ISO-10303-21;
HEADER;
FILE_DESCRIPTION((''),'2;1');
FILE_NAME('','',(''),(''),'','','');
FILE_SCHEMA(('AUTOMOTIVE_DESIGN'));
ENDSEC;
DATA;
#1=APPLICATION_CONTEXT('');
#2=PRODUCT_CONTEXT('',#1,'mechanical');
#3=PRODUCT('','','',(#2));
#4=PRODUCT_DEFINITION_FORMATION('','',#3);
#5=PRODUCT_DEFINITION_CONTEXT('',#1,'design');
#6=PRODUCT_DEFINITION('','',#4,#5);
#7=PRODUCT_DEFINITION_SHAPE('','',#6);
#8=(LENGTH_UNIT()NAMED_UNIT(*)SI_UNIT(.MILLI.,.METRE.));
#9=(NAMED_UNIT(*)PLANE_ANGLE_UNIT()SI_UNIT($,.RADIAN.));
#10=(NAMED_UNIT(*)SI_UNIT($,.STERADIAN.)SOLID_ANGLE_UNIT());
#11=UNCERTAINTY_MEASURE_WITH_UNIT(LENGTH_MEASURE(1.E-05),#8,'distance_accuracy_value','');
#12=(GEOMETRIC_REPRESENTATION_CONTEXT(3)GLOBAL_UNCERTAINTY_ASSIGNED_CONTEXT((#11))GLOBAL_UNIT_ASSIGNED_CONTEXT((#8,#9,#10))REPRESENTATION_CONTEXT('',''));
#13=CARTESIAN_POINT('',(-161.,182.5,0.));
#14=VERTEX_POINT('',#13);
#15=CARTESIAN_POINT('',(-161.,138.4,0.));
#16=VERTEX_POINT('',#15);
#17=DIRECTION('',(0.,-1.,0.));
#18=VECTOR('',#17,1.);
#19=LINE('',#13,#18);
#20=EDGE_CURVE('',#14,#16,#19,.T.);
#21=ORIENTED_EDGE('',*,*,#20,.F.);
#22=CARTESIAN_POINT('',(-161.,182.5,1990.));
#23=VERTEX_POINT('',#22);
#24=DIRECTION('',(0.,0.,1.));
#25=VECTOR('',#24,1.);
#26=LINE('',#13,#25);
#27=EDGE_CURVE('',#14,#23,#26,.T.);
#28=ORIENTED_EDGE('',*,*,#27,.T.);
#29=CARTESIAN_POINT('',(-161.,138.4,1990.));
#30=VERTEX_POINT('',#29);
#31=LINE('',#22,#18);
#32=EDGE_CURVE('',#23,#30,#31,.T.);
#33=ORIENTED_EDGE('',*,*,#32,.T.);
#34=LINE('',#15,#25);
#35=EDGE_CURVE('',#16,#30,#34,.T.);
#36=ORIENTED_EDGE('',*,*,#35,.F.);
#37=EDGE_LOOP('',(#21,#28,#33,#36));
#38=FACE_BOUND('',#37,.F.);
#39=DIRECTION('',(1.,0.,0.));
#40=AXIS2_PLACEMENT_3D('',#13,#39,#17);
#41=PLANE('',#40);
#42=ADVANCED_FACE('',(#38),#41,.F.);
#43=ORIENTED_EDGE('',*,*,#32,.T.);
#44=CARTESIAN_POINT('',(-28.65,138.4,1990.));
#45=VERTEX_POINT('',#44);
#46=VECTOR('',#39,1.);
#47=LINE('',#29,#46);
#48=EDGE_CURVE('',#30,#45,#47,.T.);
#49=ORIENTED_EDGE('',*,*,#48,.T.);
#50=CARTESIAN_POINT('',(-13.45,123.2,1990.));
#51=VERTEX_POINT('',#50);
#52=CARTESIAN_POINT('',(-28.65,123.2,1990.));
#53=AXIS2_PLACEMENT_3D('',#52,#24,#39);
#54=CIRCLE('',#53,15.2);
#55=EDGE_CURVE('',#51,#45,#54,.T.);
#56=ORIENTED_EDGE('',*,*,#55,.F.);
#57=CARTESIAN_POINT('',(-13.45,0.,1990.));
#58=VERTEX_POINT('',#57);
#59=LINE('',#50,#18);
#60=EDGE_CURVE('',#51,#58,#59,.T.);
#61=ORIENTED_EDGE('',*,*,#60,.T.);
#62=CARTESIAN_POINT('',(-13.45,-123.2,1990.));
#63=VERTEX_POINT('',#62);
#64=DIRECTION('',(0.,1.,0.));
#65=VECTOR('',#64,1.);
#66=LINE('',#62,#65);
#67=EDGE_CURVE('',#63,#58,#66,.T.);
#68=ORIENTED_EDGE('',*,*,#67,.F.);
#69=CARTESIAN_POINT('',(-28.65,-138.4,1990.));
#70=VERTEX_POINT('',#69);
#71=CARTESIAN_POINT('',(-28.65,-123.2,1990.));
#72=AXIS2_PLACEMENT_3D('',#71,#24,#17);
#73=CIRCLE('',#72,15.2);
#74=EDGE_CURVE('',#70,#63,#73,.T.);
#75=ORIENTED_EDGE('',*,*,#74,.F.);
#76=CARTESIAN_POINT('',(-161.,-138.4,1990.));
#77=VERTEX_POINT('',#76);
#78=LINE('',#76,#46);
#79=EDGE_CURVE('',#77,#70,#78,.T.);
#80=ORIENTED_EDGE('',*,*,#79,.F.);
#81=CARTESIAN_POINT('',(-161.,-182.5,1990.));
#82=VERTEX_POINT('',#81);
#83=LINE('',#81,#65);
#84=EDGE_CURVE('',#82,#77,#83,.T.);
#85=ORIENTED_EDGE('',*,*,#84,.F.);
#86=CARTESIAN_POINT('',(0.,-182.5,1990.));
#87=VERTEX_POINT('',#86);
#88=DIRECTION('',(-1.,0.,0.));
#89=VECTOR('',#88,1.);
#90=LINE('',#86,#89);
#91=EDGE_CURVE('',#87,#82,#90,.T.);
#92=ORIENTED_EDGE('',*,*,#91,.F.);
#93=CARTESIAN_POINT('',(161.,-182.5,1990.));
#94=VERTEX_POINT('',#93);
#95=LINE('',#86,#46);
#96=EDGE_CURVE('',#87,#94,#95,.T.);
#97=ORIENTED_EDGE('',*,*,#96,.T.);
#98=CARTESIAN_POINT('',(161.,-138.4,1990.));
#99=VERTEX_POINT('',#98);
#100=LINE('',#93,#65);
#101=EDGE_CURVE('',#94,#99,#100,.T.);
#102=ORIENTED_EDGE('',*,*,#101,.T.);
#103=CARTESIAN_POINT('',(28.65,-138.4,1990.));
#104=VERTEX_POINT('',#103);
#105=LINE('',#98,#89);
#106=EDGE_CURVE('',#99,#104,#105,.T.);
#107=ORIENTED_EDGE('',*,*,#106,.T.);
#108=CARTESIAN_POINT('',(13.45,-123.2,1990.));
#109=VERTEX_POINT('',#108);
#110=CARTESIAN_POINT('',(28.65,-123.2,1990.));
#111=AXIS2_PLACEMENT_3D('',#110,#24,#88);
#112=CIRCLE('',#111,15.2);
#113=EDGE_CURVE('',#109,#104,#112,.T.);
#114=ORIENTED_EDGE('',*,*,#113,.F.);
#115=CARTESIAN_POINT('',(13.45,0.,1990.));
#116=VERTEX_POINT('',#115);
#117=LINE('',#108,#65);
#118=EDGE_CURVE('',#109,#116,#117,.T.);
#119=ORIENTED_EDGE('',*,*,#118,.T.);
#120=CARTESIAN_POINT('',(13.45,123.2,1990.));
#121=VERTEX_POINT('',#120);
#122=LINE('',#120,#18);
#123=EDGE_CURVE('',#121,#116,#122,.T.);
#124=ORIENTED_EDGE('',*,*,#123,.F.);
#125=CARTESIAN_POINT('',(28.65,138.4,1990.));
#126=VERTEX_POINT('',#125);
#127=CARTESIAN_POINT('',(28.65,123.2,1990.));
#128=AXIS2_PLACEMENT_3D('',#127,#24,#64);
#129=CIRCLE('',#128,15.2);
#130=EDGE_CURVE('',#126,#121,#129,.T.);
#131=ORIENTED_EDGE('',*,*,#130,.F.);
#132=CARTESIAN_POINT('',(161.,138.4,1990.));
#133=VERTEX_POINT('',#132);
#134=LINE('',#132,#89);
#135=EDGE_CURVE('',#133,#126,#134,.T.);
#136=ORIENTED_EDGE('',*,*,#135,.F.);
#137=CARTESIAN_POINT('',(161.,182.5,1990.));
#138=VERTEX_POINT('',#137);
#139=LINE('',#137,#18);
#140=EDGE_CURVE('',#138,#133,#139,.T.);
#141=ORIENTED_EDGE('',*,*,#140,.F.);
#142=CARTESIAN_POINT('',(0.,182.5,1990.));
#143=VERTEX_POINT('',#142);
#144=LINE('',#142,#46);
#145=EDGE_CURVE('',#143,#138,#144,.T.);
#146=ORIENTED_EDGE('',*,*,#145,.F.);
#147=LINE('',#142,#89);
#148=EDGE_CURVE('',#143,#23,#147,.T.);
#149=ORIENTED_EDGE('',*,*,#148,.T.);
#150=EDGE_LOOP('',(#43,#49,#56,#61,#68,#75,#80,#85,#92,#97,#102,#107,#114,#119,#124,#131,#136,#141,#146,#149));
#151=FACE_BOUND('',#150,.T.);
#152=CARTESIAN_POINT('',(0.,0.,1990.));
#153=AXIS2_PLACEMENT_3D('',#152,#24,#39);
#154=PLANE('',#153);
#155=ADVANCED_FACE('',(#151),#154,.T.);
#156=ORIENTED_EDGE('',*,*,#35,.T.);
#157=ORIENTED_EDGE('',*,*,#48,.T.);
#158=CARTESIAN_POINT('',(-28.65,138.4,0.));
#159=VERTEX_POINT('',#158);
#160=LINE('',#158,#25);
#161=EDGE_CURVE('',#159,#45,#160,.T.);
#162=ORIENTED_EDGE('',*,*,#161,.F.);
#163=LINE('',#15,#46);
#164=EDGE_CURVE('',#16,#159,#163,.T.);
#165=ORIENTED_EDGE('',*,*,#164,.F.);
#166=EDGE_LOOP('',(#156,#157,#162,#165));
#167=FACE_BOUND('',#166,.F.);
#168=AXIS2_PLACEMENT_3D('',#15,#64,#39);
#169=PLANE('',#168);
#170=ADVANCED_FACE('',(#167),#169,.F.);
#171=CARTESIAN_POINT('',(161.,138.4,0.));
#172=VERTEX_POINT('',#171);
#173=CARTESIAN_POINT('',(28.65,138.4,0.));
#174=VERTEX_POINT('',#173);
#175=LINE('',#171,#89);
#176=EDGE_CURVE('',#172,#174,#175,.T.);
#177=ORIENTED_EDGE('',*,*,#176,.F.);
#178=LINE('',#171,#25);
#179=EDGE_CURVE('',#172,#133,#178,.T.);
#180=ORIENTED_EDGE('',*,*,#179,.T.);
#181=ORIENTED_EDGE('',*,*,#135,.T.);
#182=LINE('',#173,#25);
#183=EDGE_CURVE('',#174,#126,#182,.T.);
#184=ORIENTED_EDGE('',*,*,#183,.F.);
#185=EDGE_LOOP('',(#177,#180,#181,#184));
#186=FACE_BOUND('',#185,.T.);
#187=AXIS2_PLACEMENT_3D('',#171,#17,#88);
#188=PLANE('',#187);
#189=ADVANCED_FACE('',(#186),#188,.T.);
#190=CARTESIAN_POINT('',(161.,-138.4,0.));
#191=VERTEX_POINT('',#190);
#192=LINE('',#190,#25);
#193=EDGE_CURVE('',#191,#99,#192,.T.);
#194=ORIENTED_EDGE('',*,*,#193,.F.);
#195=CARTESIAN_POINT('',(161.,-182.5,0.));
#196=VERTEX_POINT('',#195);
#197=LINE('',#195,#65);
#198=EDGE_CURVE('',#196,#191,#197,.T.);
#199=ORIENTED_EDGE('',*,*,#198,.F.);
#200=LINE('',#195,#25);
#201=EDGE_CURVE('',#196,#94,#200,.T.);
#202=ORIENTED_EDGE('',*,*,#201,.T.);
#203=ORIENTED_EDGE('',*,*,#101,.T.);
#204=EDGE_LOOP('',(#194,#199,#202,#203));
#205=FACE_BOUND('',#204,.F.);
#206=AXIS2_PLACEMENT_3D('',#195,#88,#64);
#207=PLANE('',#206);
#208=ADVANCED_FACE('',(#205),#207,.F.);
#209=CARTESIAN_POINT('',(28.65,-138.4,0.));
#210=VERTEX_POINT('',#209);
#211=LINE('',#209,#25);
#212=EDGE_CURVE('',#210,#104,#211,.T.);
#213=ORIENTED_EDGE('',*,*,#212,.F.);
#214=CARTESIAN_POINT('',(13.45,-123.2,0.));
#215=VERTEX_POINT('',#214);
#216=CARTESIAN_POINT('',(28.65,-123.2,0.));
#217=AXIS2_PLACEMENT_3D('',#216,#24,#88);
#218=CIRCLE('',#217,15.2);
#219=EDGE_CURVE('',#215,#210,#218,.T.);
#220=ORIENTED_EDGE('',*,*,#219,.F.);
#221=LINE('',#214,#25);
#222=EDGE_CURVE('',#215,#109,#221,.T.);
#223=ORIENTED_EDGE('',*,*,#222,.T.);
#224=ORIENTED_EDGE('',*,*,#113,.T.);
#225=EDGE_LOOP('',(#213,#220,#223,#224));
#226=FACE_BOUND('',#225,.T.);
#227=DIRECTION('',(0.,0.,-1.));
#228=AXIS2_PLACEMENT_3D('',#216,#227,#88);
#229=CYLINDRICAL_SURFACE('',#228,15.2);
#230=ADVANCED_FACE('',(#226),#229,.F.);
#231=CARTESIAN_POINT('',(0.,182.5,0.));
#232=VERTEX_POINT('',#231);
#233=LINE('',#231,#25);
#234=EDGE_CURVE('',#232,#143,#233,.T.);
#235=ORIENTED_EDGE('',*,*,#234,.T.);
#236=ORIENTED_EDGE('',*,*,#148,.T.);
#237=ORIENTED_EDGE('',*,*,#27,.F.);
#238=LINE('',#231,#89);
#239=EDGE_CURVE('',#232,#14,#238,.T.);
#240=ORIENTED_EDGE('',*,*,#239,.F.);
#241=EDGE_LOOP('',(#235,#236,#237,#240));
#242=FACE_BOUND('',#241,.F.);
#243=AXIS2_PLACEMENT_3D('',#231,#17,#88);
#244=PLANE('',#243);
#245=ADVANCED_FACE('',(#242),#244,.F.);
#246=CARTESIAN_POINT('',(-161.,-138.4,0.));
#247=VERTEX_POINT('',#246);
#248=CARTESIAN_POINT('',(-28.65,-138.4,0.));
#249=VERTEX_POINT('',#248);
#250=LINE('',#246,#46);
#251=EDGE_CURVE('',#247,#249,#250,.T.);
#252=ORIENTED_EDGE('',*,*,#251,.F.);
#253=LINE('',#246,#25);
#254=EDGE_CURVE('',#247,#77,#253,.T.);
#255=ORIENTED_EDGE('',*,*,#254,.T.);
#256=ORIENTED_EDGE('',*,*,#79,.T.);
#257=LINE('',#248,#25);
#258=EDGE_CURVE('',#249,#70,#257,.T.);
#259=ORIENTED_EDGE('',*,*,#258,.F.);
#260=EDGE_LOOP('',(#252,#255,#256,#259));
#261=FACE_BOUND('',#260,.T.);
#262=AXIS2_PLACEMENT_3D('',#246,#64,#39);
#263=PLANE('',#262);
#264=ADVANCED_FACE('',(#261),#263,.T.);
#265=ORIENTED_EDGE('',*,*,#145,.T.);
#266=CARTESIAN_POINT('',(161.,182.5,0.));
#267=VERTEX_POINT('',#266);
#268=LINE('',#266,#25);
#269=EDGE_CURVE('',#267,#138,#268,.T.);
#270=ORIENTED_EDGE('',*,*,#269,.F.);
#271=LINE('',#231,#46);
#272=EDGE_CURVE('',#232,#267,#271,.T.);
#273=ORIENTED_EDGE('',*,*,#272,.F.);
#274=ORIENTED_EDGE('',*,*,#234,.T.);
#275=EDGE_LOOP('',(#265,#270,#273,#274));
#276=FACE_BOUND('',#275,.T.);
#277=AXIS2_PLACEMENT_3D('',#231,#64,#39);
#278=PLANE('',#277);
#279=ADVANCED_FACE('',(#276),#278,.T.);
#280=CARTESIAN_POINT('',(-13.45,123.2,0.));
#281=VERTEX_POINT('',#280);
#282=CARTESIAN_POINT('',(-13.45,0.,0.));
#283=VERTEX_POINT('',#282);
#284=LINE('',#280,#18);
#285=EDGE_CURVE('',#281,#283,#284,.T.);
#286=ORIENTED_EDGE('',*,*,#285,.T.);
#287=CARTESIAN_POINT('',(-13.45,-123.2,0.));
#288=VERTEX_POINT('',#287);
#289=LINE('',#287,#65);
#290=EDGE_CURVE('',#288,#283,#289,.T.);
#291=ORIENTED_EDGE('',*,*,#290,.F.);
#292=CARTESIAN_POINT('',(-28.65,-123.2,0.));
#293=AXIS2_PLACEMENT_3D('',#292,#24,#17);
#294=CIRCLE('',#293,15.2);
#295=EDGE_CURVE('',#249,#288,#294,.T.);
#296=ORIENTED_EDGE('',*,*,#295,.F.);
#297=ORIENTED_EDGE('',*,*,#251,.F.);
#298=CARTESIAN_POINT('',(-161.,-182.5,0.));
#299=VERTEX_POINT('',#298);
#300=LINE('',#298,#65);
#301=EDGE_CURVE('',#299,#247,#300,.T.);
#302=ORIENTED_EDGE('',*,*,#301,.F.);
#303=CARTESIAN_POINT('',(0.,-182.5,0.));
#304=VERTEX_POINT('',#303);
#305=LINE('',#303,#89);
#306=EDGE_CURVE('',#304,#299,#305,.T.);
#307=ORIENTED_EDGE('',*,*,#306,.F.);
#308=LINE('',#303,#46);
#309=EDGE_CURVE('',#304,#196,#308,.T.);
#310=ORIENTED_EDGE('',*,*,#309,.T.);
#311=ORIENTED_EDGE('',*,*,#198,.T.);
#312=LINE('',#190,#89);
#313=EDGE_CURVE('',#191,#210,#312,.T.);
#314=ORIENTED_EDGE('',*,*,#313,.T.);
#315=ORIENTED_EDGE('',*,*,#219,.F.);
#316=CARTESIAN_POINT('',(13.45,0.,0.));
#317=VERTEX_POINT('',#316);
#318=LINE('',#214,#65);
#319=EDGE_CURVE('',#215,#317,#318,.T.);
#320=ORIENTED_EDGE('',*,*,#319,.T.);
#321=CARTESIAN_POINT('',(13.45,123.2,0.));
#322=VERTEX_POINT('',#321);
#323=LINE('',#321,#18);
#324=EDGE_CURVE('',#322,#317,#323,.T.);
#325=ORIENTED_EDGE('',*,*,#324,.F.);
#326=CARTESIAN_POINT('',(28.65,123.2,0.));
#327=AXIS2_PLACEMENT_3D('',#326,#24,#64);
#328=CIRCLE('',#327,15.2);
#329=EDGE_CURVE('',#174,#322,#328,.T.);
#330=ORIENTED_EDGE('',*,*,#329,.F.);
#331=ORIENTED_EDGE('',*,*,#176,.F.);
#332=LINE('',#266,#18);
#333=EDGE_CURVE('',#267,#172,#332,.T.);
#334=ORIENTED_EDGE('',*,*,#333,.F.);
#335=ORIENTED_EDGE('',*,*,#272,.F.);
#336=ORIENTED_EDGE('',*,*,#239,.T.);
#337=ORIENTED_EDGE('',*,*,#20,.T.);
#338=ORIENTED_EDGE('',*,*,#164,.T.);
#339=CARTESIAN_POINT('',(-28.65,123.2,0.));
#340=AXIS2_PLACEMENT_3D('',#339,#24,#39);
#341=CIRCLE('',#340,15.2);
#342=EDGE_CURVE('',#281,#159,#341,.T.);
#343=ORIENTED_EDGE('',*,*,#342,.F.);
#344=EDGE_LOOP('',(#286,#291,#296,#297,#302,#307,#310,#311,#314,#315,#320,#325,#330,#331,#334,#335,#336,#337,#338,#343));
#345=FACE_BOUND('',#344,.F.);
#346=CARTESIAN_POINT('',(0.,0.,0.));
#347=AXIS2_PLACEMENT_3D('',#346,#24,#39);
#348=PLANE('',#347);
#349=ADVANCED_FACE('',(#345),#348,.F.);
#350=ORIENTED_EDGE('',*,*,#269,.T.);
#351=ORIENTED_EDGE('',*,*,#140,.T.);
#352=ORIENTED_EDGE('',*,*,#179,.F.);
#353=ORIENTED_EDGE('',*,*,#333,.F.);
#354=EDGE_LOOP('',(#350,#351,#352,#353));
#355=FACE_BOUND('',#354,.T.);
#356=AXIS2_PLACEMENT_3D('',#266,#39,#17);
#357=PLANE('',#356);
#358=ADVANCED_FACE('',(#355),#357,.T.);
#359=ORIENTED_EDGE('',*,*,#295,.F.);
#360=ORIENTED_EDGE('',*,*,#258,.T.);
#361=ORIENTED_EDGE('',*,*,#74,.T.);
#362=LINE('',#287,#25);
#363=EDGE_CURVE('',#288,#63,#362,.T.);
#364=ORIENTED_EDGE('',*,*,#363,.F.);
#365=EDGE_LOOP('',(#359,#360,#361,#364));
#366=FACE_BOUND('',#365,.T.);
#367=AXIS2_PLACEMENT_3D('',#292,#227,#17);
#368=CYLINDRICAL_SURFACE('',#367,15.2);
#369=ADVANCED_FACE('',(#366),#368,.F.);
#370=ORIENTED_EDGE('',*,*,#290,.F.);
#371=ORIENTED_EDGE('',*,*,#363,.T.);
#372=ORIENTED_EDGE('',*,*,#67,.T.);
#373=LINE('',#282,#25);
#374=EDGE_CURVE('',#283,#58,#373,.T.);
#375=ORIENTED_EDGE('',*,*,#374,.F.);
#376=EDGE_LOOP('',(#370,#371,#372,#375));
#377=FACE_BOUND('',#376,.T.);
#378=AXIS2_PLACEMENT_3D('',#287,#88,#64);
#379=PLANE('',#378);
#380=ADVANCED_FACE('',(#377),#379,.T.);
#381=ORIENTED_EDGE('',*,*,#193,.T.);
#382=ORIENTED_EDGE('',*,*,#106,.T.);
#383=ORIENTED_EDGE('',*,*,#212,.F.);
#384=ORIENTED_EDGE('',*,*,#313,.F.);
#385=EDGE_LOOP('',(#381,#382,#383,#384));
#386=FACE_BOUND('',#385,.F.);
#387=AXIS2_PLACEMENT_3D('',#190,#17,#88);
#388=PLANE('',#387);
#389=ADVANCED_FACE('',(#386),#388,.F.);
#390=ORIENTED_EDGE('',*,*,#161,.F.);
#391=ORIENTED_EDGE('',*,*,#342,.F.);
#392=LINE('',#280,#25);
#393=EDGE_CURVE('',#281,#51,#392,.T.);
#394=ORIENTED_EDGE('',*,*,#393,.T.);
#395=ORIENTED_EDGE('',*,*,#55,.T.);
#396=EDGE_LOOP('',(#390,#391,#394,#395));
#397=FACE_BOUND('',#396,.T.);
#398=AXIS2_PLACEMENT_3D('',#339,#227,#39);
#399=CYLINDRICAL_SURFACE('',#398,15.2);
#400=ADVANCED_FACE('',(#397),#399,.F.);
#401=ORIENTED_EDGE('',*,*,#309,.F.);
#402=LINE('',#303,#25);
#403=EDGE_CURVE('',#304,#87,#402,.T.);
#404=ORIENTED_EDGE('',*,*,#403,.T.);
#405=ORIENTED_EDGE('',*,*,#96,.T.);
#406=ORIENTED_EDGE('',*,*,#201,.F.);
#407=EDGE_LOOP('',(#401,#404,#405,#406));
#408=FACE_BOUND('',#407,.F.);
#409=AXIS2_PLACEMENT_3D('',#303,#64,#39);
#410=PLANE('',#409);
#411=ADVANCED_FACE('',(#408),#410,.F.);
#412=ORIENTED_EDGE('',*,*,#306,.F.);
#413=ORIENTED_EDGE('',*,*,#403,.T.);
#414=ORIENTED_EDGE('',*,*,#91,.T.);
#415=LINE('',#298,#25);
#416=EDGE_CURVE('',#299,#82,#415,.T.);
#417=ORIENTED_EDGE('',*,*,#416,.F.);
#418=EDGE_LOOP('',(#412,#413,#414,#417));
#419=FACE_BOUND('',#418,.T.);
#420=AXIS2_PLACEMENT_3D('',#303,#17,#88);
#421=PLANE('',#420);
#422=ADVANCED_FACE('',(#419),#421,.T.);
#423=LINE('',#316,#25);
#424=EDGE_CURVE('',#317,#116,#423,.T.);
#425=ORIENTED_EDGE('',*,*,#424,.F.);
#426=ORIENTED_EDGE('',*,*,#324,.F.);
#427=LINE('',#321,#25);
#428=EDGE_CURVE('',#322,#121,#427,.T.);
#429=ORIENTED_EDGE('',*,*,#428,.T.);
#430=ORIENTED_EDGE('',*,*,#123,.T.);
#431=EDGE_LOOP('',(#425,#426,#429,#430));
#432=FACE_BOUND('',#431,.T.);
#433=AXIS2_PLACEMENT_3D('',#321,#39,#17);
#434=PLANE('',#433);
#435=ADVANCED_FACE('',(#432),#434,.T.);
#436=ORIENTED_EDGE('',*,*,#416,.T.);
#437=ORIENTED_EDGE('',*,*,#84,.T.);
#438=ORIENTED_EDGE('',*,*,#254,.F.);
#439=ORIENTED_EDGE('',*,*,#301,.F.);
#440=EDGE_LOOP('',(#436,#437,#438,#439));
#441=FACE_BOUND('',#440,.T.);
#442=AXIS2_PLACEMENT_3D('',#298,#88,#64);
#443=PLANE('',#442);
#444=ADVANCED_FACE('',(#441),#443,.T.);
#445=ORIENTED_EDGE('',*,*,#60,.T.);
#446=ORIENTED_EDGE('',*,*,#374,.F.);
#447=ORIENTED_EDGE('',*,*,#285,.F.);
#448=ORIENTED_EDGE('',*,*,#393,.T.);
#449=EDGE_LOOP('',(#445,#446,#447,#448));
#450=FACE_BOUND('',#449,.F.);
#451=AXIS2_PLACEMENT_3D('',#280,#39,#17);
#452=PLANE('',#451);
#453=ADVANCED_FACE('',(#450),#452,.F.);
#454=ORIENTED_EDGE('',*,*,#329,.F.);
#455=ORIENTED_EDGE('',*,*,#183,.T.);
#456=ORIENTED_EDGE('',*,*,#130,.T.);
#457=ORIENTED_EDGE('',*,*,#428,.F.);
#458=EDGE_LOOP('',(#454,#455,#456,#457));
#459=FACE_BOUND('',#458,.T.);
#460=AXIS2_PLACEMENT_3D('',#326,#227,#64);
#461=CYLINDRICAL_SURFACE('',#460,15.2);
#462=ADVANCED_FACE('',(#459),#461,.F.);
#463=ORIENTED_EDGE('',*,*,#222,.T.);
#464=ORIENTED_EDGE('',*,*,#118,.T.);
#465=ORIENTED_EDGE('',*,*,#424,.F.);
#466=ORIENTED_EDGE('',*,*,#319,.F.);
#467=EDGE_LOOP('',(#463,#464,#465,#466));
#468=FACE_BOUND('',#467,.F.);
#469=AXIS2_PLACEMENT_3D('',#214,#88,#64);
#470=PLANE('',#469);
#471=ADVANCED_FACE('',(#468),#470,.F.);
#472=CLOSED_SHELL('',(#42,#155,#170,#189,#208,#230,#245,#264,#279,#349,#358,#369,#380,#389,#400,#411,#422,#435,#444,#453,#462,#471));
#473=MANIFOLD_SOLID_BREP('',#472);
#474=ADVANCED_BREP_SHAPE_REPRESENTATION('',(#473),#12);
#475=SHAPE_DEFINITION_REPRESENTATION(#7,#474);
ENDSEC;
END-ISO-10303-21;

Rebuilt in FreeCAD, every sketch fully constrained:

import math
import FreeCAD as App
import Part
import Sketcher
from FreeCAD import Vector
Q = App.Units.Quantity

doc = App.newDocument("Part")
body = doc.addObject("PartDesign::Body", "Body")

# Sketch on XY plane
sketch1 = doc.addObject("Sketcher::SketchObject", "Sketch")
body.addObject(sketch1)
sketch1.AttachmentSupport = (doc.XY_Plane, [""])
sketch1.MapMode = "FlatFace"
sketch1.addGeometry(Part.LineSegment(Vector(-161, -138.4, 0), Vector(-161, -182.5, 0)), False)
sketch1.addGeometry(Part.LineSegment(Vector(-161, -182.5, 0), Vector(161, -182.5, 0)), False)
sketch1.addGeometry(Part.LineSegment(Vector(161, -182.5, 0), Vector(161, -138.4, 0)), False)
sketch1.addGeometry(Part.LineSegment(Vector(161, -138.4, 0), Vector(28.65, -138.4, 0)), False)
sketch1.addGeometry(Part.ArcOfCircle(Part.Circle(Vector(28.65, -123.2, 0), Vector(0, 0, 1), 15.2), math.radians(180), math.radians(270)), False)
sketch1.addGeometry(Part.LineSegment(Vector(13.45, -123.2, 0), Vector(13.45, 123.2, 0)), False)
sketch1.addGeometry(Part.ArcOfCircle(Part.Circle(Vector(28.65, 123.2, 0), Vector(0, 0, 1), 15.2), math.radians(90), math.radians(180)), False)
sketch1.addGeometry(Part.LineSegment(Vector(28.65, 138.4, 0), Vector(161, 138.4, 0)), False)
sketch1.addGeometry(Part.LineSegment(Vector(161, 138.4, 0), Vector(161, 182.5, 0)), False)
sketch1.addGeometry(Part.LineSegment(Vector(161, 182.5, 0), Vector(-161, 182.5, 0)), False)
sketch1.addGeometry(Part.LineSegment(Vector(-161, 182.5, 0), Vector(-161, 138.4, 0)), False)
sketch1.addGeometry(Part.LineSegment(Vector(-161, 138.4, 0), Vector(-28.65, 138.4, 0)), False)
sketch1.addGeometry(Part.ArcOfCircle(Part.Circle(Vector(-28.65, 123.2, 0), Vector(0, 0, 1), 15.2), math.radians(0), math.radians(90)), False)
sketch1.addGeometry(Part.LineSegment(Vector(-13.45, 123.2, 0), Vector(-13.45, -123.2, 0)), False)
sketch1.addGeometry(Part.ArcOfCircle(Part.Circle(Vector(-28.65, -123.2, 0), Vector(0, 0, 1), 15.2), math.radians(-90), math.radians(0)), False)
sketch1.addGeometry(Part.LineSegment(Vector(-28.65, -138.4, 0), Vector(-161, -138.4, 0)), False)
sketch1.addConstraint(Sketcher.Constraint("Coincident", 0, 2, 1, 1))
sketch1.addConstraint(Sketcher.Constraint("Coincident", 1, 2, 2, 1))
sketch1.addConstraint(Sketcher.Constraint("Coincident", 2, 2, 3, 1))
sketch1.addConstraint(Sketcher.Constraint("Tangent", 3, 2, 4, 2))
sketch1.addConstraint(Sketcher.Constraint("Tangent", 4, 1, 5, 1))
sketch1.addConstraint(Sketcher.Constraint("Tangent", 5, 2, 6, 2))
sketch1.addConstraint(Sketcher.Constraint("Tangent", 6, 1, 7, 1))
sketch1.addConstraint(Sketcher.Constraint("Coincident", 7, 2, 8, 1))
sketch1.addConstraint(Sketcher.Constraint("Coincident", 8, 2, 9, 1))
sketch1.addConstraint(Sketcher.Constraint("Coincident", 9, 2, 10, 1))
sketch1.addConstraint(Sketcher.Constraint("Coincident", 10, 2, 11, 1))
sketch1.addConstraint(Sketcher.Constraint("Tangent", 11, 2, 12, 2))
sketch1.addConstraint(Sketcher.Constraint("Tangent", 12, 1, 13, 1))
sketch1.addConstraint(Sketcher.Constraint("Tangent", 13, 2, 14, 2))
sketch1.addConstraint(Sketcher.Constraint("Tangent", 14, 1, 15, 1))
sketch1.addConstraint(Sketcher.Constraint("Coincident", 15, 2, 0, 1))
sketch1.addConstraint(Sketcher.Constraint("Vertical", 0))
sketch1.addConstraint(Sketcher.Constraint("Horizontal", 1))
sketch1.addConstraint(Sketcher.Constraint("Vertical", 2))
sketch1.addConstraint(Sketcher.Constraint("Horizontal", 3))
sketch1.addConstraint(Sketcher.Constraint("Vertical", 5))
sketch1.addConstraint(Sketcher.Constraint("Horizontal", 7))
sketch1.addConstraint(Sketcher.Constraint("Vertical", 8))
sketch1.addConstraint(Sketcher.Constraint("Horizontal", 9))
sketch1.addConstraint(Sketcher.Constraint("Vertical", 10))
sketch1.addConstraint(Sketcher.Constraint("Horizontal", 11))
sketch1.addConstraint(Sketcher.Constraint("Vertical", 13))
sketch1.addConstraint(Sketcher.Constraint("Horizontal", 15))
sketch1.addConstraint(Sketcher.Constraint("Equal", 4, 6))
sketch1.addConstraint(Sketcher.Constraint("Equal", 6, 12))
sketch1.addConstraint(Sketcher.Constraint("Equal", 12, 14))
sketch1.addConstraint(Sketcher.Constraint("Symmetric", 4, 3, 12, 3, -1, 1))
sketch1.addConstraint(Sketcher.Constraint("Symmetric", 0, 2, 8, 2, -1, 1))
sketch1.addConstraint(Sketcher.Constraint("Symmetric", 7, 2, 10, 2, -2))
sketch1.addConstraint(Sketcher.Constraint("Symmetric", 2, 2, 15, 2, -2))
sketch1.addConstraint(Sketcher.Constraint("Radius", 4, Q("15.2 mm")))
sketch1.addConstraint(Sketcher.Constraint("DistanceY", 0, 2, 0, 1, Q("44.1 mm")))
sketch1.addConstraint(Sketcher.Constraint("DistanceX", 0, 2, -1, 1, Q("161 mm")))
sketch1.addConstraint(Sketcher.Constraint("DistanceY", 0, 2, -1, 1, Q("182.5 mm")))
sketch1.addConstraint(Sketcher.Constraint("DistanceX", -1, 1, 4, 1, Q("13.45 mm")))
pad1 = doc.addObject("PartDesign::Pad", "Pad")
body.addObject(pad1)
pad1.Profile = sketch1
pad1.Length = 1990

doc.recompute()
